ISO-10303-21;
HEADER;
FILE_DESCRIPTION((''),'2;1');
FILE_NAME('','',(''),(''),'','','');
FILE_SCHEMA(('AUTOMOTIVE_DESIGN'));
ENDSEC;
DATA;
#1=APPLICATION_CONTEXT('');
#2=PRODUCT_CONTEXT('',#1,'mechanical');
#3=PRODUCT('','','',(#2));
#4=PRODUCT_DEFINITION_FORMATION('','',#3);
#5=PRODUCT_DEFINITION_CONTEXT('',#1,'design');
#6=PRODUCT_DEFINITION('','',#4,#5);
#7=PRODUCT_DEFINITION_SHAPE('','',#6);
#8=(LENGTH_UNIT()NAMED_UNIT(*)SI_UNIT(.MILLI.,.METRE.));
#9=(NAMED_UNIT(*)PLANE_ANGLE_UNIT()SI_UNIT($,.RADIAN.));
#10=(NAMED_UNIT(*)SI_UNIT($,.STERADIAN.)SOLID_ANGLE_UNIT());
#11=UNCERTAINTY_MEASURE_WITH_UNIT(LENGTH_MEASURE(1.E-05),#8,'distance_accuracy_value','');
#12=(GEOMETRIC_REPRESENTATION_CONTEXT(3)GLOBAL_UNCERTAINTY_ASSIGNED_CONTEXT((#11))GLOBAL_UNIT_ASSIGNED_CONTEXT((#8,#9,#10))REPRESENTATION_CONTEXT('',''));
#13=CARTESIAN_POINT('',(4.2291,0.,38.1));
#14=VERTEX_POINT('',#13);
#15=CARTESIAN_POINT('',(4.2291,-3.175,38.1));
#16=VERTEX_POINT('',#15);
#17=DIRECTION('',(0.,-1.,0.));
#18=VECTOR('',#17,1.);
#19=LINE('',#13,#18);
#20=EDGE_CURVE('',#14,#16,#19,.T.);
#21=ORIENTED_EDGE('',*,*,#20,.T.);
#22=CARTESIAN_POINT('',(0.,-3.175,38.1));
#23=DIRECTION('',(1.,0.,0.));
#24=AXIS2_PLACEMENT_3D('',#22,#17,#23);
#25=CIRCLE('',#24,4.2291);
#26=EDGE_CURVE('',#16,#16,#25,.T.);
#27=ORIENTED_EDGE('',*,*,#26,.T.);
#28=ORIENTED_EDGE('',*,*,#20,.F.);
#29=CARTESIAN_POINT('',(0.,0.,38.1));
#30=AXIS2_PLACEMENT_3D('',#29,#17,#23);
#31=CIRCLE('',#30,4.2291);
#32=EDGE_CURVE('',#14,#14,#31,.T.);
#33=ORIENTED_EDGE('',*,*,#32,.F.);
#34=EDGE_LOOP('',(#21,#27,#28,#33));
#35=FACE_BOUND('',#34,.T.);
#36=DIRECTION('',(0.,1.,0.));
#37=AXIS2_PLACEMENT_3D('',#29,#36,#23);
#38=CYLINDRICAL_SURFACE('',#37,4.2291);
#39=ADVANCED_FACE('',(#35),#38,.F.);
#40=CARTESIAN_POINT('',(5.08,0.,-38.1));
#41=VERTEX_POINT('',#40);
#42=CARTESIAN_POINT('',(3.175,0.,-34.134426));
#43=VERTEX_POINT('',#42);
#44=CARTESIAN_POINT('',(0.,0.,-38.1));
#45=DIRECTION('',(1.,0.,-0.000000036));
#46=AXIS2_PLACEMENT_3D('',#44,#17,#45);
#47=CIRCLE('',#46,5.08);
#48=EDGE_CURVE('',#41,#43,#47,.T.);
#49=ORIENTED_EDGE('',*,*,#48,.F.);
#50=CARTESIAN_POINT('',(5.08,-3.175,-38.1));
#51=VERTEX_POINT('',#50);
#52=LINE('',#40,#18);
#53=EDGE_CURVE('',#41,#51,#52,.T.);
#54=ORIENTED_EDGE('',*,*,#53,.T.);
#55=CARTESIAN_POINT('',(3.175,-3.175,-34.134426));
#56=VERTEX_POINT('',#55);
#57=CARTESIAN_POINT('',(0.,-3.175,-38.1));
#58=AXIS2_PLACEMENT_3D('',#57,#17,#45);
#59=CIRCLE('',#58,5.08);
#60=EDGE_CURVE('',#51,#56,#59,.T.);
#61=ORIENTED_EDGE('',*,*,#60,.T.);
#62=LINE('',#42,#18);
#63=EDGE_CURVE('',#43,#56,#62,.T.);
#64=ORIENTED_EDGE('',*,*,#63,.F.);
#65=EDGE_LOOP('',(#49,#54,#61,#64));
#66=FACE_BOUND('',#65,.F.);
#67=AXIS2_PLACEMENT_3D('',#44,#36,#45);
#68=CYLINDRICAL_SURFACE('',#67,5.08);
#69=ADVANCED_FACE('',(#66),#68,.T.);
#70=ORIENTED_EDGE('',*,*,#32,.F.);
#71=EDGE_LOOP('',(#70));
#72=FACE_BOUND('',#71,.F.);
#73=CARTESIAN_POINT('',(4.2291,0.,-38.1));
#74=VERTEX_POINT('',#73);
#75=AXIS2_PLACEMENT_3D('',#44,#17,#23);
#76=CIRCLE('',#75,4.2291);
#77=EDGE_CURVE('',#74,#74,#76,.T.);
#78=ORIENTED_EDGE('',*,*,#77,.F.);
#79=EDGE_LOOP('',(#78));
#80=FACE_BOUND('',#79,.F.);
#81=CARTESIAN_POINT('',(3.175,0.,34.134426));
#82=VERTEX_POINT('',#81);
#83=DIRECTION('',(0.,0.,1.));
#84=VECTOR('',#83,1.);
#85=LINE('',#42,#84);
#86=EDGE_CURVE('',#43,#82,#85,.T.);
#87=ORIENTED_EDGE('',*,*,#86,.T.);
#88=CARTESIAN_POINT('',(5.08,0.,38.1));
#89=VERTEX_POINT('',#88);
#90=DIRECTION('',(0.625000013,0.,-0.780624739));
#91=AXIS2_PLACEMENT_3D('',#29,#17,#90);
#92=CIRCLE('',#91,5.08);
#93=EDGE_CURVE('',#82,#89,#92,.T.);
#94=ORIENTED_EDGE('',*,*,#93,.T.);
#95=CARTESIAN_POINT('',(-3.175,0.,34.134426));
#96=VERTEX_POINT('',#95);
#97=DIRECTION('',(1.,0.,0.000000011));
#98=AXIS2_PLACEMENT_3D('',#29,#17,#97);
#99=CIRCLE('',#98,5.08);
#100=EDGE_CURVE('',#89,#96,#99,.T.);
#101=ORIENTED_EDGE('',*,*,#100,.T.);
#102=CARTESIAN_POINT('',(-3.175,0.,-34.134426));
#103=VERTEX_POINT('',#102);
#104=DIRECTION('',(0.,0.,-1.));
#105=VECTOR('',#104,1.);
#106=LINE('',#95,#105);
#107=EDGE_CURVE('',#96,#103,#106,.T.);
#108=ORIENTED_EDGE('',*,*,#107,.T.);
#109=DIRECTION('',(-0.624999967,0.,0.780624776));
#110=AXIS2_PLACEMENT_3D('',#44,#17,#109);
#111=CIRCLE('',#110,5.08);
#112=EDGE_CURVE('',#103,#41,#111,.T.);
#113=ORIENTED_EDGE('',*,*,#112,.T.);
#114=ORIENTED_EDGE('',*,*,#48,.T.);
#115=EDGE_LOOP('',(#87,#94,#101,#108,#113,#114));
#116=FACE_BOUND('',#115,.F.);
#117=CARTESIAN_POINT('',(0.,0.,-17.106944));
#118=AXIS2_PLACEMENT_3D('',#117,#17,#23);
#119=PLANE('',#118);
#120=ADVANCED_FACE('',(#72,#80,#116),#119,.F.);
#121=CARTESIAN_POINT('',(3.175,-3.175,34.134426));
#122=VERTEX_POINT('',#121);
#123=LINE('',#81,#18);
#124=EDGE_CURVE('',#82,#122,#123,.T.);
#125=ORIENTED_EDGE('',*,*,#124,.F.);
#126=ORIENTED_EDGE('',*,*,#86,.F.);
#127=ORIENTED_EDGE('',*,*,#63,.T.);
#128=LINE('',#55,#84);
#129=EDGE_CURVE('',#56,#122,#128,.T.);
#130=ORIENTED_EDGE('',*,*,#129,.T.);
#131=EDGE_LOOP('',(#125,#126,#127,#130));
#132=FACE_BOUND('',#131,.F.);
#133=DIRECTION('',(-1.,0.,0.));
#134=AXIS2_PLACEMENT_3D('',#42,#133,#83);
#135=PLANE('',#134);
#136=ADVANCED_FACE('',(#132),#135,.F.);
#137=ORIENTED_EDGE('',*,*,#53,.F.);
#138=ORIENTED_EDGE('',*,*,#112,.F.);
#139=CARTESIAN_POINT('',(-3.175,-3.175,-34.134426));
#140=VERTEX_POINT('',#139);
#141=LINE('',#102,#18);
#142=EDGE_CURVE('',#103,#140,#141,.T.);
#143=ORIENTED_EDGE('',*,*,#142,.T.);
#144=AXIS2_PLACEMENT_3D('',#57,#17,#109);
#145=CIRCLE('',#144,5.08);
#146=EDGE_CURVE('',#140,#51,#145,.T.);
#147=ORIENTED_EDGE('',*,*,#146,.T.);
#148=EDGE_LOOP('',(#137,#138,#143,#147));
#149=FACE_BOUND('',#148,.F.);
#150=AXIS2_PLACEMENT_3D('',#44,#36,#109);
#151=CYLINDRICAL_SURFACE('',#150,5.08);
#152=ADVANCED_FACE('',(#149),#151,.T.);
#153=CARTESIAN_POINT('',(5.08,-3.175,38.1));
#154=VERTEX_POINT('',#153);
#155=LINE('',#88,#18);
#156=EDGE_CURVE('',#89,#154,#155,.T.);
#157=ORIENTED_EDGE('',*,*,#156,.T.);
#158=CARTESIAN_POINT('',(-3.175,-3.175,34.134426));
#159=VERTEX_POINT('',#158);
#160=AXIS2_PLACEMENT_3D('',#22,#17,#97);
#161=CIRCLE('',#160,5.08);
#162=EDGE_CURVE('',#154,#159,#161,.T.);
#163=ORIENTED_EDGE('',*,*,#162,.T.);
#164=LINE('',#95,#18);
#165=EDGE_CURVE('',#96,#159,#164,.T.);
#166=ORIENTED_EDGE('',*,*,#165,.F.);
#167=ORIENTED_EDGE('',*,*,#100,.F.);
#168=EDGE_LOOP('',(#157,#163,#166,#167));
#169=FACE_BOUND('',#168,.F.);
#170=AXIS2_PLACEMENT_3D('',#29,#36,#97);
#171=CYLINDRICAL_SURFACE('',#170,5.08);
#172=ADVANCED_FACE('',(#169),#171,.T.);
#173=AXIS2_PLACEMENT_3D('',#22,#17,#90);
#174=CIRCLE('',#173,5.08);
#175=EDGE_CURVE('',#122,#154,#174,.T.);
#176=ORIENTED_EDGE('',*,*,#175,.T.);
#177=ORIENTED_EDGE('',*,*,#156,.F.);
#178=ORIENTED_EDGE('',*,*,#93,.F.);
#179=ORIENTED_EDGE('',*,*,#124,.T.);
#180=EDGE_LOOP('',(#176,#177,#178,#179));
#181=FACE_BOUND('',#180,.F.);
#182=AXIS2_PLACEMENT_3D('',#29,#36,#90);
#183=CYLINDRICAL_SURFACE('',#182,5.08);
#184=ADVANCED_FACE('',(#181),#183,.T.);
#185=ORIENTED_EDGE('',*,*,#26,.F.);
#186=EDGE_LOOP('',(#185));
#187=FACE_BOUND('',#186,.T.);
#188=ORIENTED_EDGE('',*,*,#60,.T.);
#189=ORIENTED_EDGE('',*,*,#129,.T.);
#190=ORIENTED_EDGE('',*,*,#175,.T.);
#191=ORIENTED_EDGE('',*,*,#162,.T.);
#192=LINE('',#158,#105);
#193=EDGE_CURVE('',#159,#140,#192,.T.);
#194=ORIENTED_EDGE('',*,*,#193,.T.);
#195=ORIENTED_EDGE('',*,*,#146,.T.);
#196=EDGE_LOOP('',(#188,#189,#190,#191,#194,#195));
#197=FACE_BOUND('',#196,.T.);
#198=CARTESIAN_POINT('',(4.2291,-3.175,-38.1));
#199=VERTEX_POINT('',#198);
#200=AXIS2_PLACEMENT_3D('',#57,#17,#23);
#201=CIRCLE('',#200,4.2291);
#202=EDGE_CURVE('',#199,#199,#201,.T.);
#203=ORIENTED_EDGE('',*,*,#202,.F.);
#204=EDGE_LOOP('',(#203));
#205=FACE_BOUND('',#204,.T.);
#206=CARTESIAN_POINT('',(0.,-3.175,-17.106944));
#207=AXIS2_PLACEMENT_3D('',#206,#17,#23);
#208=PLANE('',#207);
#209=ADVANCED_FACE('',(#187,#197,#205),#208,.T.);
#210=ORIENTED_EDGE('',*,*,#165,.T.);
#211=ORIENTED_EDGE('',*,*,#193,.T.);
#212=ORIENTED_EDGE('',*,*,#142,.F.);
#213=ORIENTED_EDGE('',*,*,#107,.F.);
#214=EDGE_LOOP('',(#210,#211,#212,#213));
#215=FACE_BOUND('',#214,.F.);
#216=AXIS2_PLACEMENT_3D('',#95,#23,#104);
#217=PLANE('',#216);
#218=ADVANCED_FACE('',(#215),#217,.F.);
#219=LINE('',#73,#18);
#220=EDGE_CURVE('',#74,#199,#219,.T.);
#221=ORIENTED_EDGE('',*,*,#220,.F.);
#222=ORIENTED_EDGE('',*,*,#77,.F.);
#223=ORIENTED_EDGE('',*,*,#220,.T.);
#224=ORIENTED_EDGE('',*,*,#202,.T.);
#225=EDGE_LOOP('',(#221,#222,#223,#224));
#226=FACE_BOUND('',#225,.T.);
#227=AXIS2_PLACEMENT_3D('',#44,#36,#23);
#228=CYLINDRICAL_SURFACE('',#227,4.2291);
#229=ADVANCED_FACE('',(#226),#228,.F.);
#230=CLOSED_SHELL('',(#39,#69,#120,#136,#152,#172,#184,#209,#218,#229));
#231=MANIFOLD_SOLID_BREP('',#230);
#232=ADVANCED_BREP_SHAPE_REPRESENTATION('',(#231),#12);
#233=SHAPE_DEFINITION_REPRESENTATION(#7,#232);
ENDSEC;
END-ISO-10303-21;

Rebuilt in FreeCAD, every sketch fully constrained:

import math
import FreeCAD as App
import Part
import Sketcher
from FreeCAD import Vector
Q = App.Units.Quantity

doc = App.newDocument("Part")
body = doc.addObject("PartDesign::Body", "Body")

sketch1 = body.newObject("Sketcher::SketchObject", "Sketch")
sketch1.AttachmentSupport = (doc.getObject("XZ_Plane"), [""])
sketch1.MapMode = "FlatFace"
sketch1.addGeometry(Part.LineSegment(Vector(3.175, -34.134426, 0), Vector(3.175, 34.134426, 0)), False)
sketch1.addGeometry(Part.ArcOfCircle(Part.Circle(Vector(0, 38.1, 0), Vector(0, 0, 1), 5.08), math.radians(-51.317812), math.radians(0.000002)), False)
sketch1.addGeometry(Part.ArcOfCircle(Part.Circle(Vector(0, 38.1, 0), Vector(0, 0, 1), 5.08), math.radians(0.000001), math.radians(231.317815)), False)
sketch1.addGeometry(Part.LineSegment(Vector(-3.175, 34.134426, 0), Vector(-3.175, -34.134426, 0)), False)
sketch1.addGeometry(Part.ArcOfCircle(Part.Circle(Vector(0, -38.1, 0), Vector(0, 0, 1), 5.08), math.radians(128.682185), math.radians(359.999999)), False)
sketch1.addGeometry(Part.ArcOfCircle(Part.Circle(Vector(0, -38.1, 0), Vector(0, 0, 1), 5.08), math.radians(-0.000002), math.radians(51.317812)), False)
sketch1.addGeometry(Part.Circle(Vector(0, -38.1, 0), Vector(0, 0, 1), 4.2291), False)
sketch1.addGeometry(Part.Circle(Vector(0, 38.1, 0), Vector(0, 0, 1), 4.2291), False)
sketch1.addConstraint(Sketcher.Constraint("Coincident", 0, 2, 1, 1))
sketch1.addConstraint(Sketcher.Constraint("Tangent", 1, 2, 2, 1))
sketch1.addConstraint(Sketcher.Constraint("Coincident", 2, 2, 3, 1))
sketch1.addConstraint(Sketcher.Constraint("Coincident", 3, 2, 4, 1))
sketch1.addConstraint(Sketcher.Constraint("Tangent", 4, 2, 5, 1))
sketch1.addConstraint(Sketcher.Constraint("Coincident", 5, 2, 0, 1))
sketch1.addConstraint(Sketcher.Constraint("Vertical", 0))
sketch1.addConstraint(Sketcher.Constraint("Vertical", 3))
sketch1.addConstraint(Sketcher.Constraint("Coincident", 6, 3, 4, 3))
sketch1.addConstraint(Sketcher.Constraint("Coincident", 7, 3, 1, 3))
sketch1.addConstraint(Sketcher.Constraint("Equal", 1, 2))
sketch1.addConstraint(Sketcher.Constraint("Equal", 2, 4))
sketch1.addConstraint(Sketcher.Constraint("Equal", 4, 5))
sketch1.addConstraint(Sketcher.Constraint("Equal", 6, 7))
sketch1.addConstraint(Sketcher.Constraint("Symmetric", 1, 3, 4, 3, -1, 1))
sketch1.addConstraint(Sketcher.Constraint("Symmetric", 0, 2, 2, 2, -2))
sketch1.addConstraint(Sketcher.Constraint("Horizontal", 7, 3, 1, 2))
sketch1.addConstraint(Sketcher.Constraint("Horizontal", 6, 3, 4, 2))
sketch1.addConstraint(Sketcher.Constraint("Radius", 1, Q("0.2 in")))
sketch1.addConstraint(Sketcher.Constraint("Diameter", 6, Q("0.333 in")))
sketch1.addConstraint(Sketcher.Constraint("DistanceY", 4, 3, 1, 3, Q("3 in")))
sketch1.addConstraint(Sketcher.Constraint("DistanceX", 2, 2, 0, 2, Q("0.25 in")))
pad1 = body.newObject("PartDesign::Pad", "Pad")
pad1.Profile = sketch1
pad1.Length = Q("0.125 in")

doc.recompute()
